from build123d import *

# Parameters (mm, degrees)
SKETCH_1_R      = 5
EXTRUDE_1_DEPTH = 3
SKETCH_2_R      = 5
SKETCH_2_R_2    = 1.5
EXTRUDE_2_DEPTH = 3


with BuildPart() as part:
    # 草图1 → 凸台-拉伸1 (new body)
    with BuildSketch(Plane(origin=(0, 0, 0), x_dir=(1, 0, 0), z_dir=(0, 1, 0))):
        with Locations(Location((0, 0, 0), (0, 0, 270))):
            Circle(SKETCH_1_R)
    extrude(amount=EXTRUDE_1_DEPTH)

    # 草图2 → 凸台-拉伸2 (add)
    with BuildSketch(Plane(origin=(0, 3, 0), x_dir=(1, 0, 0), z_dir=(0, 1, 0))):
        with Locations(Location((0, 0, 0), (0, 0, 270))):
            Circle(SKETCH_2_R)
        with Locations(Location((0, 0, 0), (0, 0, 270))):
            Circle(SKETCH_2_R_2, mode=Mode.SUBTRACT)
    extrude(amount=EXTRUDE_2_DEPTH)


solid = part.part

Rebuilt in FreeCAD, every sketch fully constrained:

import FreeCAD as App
import Part
import Sketcher

doc = App.newDocument("Part")
body = doc.addObject("PartDesign::Body", "Body")

# Sketch on XZ plane
sketch1 = doc.addObject("Sketcher::SketchObject", "Sketch")
body.addObject(sketch1)
sketch1.AttachmentSupport = (doc.XZ_Plane, [""])
sketch1.MapMode = "FlatFace"
sketch1.addGeometry(Part.Circle(App.Vector(0, 0, 0), App.Vector(0, 0, 1), 5), False)
sketch1.addConstraint([
    Sketcher.Constraint("Coincident", 0, 3, -1, 1),
    Sketcher.Constraint("Diameter", 0, 10.0),
])
pad1 = doc.addObject("PartDesign::Pad", "Pad")
body.addObject(pad1)
pad1.Profile = sketch1
pad1.Length = 3
pad1.Reversed = True

# Sketch on XZ plane
sketch2 = doc.addObject("Sketcher::SketchObject", "Sketch001")
body.addObject(sketch2)
sketch2.AttachmentSupport = (doc.XZ_Plane, [""])
sketch2.MapMode = "FlatFace"
sketch2.AttachmentOffset = App.Placement(App.Vector(0, 0, -3), App.Rotation())
sketch2.addGeometry([
    Part.Circle(App.Vector(0, 0, 0), App.Vector(0, 0, 1), 5),
    Part.Circle(App.Vector(0, 0, 0), App.Vector(0, 0, 1), 1.5),
], False)
sketch2.addConstraint([
    Sketcher.Constraint("Coincident", 0, 3, -1, 1),
    Sketcher.Constraint("Coincident", 1, 3, -1, 1),
    Sketcher.Constraint("Diameter", 0, 10.0),
    Sketcher.Constraint("Diameter", 1, 3.0),
])
pad2 = doc.addObject("PartDesign::Pad", "Pad001")
body.addObject(pad2)
pad2.Profile = sketch2
pad2.Length = 3
pad2.Reversed = True

doc.recompute()
